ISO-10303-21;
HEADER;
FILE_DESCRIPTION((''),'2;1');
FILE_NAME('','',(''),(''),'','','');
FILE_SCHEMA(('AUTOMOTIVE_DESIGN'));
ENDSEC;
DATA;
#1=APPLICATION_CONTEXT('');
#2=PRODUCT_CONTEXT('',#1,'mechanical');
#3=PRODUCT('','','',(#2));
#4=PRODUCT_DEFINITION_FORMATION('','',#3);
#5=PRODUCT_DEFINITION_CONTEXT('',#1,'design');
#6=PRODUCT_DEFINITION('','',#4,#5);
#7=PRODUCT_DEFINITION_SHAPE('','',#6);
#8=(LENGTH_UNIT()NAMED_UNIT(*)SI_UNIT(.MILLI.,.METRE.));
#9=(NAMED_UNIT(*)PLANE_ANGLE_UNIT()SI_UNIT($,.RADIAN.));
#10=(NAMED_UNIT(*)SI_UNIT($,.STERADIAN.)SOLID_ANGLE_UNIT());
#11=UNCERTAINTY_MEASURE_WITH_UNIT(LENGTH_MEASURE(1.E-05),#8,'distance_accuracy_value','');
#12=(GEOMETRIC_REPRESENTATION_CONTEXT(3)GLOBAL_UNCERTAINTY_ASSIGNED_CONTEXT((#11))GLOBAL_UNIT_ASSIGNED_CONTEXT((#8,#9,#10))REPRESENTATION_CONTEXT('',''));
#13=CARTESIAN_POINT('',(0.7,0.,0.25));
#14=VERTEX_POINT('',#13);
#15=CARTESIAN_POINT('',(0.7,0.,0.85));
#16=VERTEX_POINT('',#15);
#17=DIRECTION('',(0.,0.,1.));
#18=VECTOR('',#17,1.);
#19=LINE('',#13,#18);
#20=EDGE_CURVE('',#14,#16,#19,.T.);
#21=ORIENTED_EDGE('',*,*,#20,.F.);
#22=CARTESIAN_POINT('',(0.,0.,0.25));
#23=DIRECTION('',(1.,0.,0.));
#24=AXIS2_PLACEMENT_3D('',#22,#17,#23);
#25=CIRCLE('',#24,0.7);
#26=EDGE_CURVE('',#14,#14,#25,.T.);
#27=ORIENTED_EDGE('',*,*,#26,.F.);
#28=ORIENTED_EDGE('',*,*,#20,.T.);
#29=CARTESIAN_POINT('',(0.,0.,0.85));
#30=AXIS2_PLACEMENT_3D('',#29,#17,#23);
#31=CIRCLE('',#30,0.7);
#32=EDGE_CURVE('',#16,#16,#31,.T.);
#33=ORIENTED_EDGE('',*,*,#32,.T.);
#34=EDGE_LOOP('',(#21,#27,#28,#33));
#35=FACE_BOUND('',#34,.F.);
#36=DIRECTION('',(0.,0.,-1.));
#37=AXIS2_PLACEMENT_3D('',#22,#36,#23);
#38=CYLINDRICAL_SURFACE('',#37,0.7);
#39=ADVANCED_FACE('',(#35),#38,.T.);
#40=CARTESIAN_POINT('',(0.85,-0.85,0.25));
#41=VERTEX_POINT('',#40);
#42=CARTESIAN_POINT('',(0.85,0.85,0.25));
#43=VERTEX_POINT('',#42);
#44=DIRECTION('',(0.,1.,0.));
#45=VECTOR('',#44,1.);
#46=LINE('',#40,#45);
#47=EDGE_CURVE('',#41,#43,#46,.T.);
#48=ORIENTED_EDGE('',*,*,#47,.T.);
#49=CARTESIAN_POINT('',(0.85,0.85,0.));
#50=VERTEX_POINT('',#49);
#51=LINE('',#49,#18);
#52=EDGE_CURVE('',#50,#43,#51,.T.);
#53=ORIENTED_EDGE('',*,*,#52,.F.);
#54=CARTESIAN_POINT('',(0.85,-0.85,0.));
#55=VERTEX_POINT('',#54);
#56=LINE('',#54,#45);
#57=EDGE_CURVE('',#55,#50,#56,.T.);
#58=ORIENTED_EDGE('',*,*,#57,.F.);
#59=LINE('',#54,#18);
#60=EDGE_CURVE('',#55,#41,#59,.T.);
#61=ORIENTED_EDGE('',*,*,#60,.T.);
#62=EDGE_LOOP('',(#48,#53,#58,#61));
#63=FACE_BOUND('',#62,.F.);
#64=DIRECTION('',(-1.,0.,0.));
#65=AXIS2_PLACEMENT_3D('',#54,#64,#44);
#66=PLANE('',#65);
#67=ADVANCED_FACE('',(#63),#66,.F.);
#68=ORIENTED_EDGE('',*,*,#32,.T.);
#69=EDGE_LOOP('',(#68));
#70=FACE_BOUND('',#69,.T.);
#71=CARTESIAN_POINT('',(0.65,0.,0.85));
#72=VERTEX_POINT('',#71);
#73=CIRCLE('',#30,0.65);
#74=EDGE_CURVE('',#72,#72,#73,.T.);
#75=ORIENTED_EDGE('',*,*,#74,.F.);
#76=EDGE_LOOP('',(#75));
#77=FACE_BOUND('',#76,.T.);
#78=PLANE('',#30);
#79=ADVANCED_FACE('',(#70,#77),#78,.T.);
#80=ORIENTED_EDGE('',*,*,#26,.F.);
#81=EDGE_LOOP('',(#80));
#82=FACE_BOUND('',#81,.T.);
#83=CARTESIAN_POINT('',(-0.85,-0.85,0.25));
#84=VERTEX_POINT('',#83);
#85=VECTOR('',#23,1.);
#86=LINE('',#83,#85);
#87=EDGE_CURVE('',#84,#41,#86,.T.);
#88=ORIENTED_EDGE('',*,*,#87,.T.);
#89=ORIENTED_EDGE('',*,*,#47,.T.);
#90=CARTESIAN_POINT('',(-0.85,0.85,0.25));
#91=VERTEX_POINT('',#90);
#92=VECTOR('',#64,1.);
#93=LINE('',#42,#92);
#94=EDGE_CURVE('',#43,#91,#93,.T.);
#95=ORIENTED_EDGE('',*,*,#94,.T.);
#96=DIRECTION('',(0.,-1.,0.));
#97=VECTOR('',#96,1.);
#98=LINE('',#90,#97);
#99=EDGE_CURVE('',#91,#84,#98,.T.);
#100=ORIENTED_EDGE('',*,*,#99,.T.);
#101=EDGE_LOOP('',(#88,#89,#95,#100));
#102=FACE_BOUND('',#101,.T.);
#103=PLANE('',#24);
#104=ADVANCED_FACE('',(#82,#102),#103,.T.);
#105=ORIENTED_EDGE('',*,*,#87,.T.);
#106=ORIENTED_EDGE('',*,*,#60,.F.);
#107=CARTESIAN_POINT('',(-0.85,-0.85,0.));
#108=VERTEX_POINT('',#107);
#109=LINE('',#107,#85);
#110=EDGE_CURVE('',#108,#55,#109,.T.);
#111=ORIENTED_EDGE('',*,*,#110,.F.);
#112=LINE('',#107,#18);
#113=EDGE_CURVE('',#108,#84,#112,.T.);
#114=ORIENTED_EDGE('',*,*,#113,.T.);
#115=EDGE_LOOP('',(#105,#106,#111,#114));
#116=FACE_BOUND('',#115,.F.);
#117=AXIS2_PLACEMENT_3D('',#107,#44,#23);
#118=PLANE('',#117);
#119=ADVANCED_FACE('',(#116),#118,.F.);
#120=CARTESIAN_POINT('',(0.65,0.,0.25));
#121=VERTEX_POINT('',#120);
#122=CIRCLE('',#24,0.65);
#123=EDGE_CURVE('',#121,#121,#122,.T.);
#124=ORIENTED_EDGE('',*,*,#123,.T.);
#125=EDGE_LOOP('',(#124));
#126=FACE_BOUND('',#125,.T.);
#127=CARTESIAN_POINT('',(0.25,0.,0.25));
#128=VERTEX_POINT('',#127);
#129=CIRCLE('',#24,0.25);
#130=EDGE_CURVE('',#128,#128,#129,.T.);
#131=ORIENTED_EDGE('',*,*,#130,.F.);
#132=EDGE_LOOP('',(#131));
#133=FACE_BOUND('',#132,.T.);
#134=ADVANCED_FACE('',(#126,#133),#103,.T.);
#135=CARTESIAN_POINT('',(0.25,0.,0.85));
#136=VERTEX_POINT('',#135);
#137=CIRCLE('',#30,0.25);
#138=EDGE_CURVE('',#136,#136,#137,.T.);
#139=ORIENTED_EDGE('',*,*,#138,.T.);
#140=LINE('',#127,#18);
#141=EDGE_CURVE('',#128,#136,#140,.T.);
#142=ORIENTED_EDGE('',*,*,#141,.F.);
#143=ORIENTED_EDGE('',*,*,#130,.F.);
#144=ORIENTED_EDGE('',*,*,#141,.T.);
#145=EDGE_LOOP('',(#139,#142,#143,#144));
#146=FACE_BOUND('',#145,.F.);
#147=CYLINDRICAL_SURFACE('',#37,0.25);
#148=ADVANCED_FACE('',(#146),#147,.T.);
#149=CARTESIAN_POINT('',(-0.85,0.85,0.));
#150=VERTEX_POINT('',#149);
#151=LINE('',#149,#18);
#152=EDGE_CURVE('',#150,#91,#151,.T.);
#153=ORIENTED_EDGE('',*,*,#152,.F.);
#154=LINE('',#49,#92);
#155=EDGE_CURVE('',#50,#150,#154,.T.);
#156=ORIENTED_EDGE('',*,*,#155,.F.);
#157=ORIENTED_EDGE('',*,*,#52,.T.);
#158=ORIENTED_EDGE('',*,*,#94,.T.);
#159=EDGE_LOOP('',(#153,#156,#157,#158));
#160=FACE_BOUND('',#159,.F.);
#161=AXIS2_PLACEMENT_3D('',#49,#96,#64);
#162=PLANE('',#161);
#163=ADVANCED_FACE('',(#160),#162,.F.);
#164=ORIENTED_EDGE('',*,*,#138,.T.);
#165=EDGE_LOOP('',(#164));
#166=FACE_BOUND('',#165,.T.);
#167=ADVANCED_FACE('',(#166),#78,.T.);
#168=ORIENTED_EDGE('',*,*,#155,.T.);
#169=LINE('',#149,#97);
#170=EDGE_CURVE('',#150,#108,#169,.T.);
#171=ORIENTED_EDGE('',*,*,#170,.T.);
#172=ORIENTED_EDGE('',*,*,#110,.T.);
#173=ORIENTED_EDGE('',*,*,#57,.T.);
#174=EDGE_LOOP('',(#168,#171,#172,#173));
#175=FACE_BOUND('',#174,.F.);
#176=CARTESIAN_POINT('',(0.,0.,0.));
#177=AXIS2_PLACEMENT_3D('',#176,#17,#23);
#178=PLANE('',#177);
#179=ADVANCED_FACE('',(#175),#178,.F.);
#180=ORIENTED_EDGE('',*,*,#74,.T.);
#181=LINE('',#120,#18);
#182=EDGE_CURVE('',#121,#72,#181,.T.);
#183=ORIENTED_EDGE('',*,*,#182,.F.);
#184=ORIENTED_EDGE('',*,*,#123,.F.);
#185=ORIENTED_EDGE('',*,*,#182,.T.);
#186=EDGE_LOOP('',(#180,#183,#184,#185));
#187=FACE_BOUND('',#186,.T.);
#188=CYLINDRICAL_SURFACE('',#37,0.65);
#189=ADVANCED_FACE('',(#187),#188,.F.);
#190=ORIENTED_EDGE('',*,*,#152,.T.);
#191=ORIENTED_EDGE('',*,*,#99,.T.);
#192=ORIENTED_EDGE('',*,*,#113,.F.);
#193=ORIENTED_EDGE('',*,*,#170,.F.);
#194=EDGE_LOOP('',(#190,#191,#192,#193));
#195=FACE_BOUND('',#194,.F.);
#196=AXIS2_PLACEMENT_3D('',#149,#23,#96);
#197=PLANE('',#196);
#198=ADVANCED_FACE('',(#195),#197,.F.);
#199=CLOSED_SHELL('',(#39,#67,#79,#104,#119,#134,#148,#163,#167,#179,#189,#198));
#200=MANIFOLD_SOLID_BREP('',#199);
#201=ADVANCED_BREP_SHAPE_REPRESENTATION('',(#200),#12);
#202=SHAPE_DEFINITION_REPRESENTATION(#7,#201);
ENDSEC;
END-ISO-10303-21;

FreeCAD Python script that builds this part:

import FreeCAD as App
import Part
import Sketcher
from FreeCAD import Vector
Q = App.Units.Quantity


def add_polygon(sketch, points):
    """Adds a closed chain of lines whose ends are joined by coincident constraints."""
    first, n = sketch.GeometryCount, len(points)
    for a, b in zip(points, points[1:] + points[:1]):
        sketch.addGeometry(Part.LineSegment(App.Vector(*a, 0), App.Vector(*b, 0)), False)
    for i in range(n):
        sketch.addConstraint(Sketcher.Constraint("Coincident", first + i, 2, first + (i + 1) % n, 1))

doc = App.newDocument("Part")
params = doc.addObject("Spreadsheet::Sheet", "Params")
for row, (alias, value) in enumerate([
    ("sketch1_width", "1.7 mm"),
    ("pad1_length", "0.25 mm"),
    ("sketch2_diameter", "1.4 mm"),
    ("sketch2_diameter2", "1.3 mm"),
    ("sketch2_diameter3", "0.5 mm"),
    ("pad2_length", "0.6 mm"),
], start=1):
    params.set(f"A{row}", alias)
    params.set(f"B{row}", "=" + value)
    params.setAlias(f"B{row}", alias)

body = doc.addObject("PartDesign::Body", "Body")

# Sketch on XY plane
sketch1 = body.newObject("Sketcher::SketchObject", "Sketch")
sketch1.AttachmentSupport = (doc.getObject("XY_Plane"), [""])
sketch1.MapMode = "FlatFace"
add_polygon(sketch1, [(-0.8, 0.8), (-0.8, -0.8), (0.8, -0.8), (0.8, 0.8)])  # lines 0-3
sketch1.addConstraint([
    Sketcher.Constraint("Vertical", 0),
    Sketcher.Constraint("Horizontal", 1),
    Sketcher.Constraint("Vertical", 2),
    Sketcher.Constraint("Horizontal", 3),
    Sketcher.Constraint("Symmetric", 0, 2, 2, 2, -1, 1),
    Sketcher.Constraint("Equal", 3, 0),
    Sketcher.Constraint("DistanceX", 1, 1, 1, 2, Q("1.7 mm")),
])
sketch1.setExpression("Constraints[10]", "Params.sketch1_width")
pad1 = body.newObject("PartDesign::Pad", "Pad")
pad1.Profile = sketch1
pad1.setExpression("Length", "Params.pad1_length")

# Sketch on XY plane
sketch2 = body.newObject("Sketcher::SketchObject", "Sketch001")
sketch2.AttachmentSupport = (doc.getObject("XY_Plane"), [""])
sketch2.MapMode = "FlatFace"
sketch2.AttachmentOffset = App.Placement(Vector(0, 0, 0.25), App.Rotation())
sketch2.addGeometry([
    Part.Circle(Vector(0, 0, 0), Vector(0, 0, 1), 0.7),
    Part.Circle(Vector(0, 0, 0), Vector(0, 0, 1), 0.65),
    Part.Circle(Vector(0, 0, 0), Vector(0, 0, 1), 0.25),
], False)
sketch2.addConstraint([
    Sketcher.Constraint("Coincident", 0, 3, -1, 1),
    Sketcher.Constraint("Coincident", 1, 3, -1, 1),
    Sketcher.Constraint("Coincident", 2, 3, -1, 1),
    Sketcher.Constraint("Diameter", 0, Q("1.4 mm")),
    Sketcher.Constraint("Diameter", 1, Q("1.3 mm")),
    Sketcher.Constraint("Diameter", 2, Q("0.5 mm")),
])
sketch2.setExpression("Constraints[3]", "Params.sketch2_diameter")
sketch2.setExpression("Constraints[4]", "Params.sketch2_diameter2")
sketch2.setExpression("Constraints[5]", "Params.sketch2_diameter3")
pad2 = body.newObject("PartDesign::Pad", "Pad001")
pad2.Profile = sketch2
pad2.setExpression("Length", "Params.pad2_length")

doc.recompute()
